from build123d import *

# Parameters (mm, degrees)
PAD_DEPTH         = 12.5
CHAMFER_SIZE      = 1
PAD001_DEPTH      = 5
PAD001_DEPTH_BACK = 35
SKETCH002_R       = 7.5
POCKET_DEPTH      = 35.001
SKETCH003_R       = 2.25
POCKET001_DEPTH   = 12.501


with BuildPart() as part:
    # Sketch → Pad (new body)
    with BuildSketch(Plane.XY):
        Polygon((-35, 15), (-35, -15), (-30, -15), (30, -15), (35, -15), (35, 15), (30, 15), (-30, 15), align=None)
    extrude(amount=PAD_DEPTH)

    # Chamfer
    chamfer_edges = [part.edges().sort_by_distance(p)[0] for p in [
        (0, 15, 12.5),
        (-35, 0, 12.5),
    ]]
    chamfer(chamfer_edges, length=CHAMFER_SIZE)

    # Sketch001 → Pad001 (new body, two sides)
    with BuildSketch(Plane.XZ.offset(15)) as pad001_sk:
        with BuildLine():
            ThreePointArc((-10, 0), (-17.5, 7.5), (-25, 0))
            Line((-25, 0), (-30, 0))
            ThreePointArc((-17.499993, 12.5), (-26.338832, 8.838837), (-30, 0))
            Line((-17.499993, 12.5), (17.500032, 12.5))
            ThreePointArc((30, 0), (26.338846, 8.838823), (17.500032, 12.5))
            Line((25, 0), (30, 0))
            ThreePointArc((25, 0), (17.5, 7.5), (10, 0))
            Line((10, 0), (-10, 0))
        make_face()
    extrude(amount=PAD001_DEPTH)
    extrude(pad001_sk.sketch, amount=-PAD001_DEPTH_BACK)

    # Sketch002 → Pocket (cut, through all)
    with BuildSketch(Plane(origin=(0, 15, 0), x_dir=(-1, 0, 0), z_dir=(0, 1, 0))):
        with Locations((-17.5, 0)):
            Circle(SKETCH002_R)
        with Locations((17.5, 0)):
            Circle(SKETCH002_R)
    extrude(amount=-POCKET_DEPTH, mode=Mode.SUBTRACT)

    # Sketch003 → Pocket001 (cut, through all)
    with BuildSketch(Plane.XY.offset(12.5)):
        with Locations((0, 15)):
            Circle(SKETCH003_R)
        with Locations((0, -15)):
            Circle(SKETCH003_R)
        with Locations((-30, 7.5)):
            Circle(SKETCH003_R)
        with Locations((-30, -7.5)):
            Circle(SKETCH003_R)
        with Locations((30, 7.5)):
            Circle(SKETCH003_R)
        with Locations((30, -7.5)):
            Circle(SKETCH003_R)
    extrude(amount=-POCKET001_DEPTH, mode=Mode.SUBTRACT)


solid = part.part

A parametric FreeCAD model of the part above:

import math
import FreeCAD as App
import Part
import Sketcher
from FreeCAD import Vector
Q = App.Units.Quantity


def edges_at(feature, points):
    """Names of the edges that pass closest to the given points."""
    edges = feature.Shape.Edges
    near = lambda p: min(range(len(edges)), key=lambda i: edges[i].distToShape(Part.Vertex(*p))[0])
    return sorted({f"Edge{near(p) + 1}" for p in points})


def add_polygon(sketch, points):
    """Adds a closed chain of lines whose ends are joined by coincident constraints."""
    first, n = sketch.GeometryCount, len(points)
    for a, b in zip(points, points[1:] + points[:1]):
        sketch.addGeometry(Part.LineSegment(App.Vector(*a, 0), App.Vector(*b, 0)), False)
    for i in range(n):
        sketch.addConstraint(Sketcher.Constraint("Coincident", first + i, 2, first + (i + 1) % n, 1))

doc = App.newDocument("Part")
body = doc.addObject("PartDesign::Body", "Body")

sketch1 = body.newObject("Sketcher::SketchObject", "Sketch")
sketch1.AttachmentSupport = (doc.getObject("XY_Plane"), [""])
sketch1.MapMode = "FlatFace"
add_polygon(sketch1, [(-35, 15), (-35, -15), (35, -15), (35, 15)])
sketch1.addConstraint(Sketcher.Constraint("Vertical", 0))
sketch1.addConstraint(Sketcher.Constraint("Horizontal", 1))
sketch1.addConstraint(Sketcher.Constraint("Vertical", 2))
sketch1.addConstraint(Sketcher.Constraint("Horizontal", 3))
sketch1.addConstraint(Sketcher.Constraint("Symmetric", 0, 2, 2, 2, -1, 1))
sketch1.addConstraint(Sketcher.Constraint("DistanceX", 1, 1, 1, 2, Q("70 mm")))
sketch1.addConstraint(Sketcher.Constraint("DistanceY", 0, 2, 0, 1, Q("30 mm")))
pad1 = body.newObject("PartDesign::Pad", "Pad")
pad1.Profile = sketch1
pad1.Length = 12.5
doc.recompute()

chamfer = body.newObject("PartDesign::Chamfer", "Chamfer")
chamfer.Base = (pad1, edges_at(pad1, [(0, 15, 12.5), (-35, 0, 12.5)]))
chamfer.Size = 1

sketch2 = body.newObject("Sketcher::SketchObject", "Sketch001")
sketch2.AttachmentSupport = (doc.getObject("XZ_Plane"), [""])
sketch2.MapMode = "FlatFace"
sketch2.AttachmentOffset = App.Placement(Vector(0, 0, 15), App.Rotation())
sketch2.addGeometry(Part.ArcOfCircle(Part.Circle(Vector(-18, 0, 0), Vector(0, 0, 1), 8), math.radians(0), math.radians(180)), False)
sketch2.addGeometry(Part.LineSegment(Vector(-10, 0, 0), Vector(10, 0, 0)), False)
sketch2.addGeometry(Part.ArcOfCircle(Part.Circle(Vector(18, 0, 0), Vector(0, 0, 1), 8), math.radians(0), math.radians(180)), False)
sketch2.addGeometry(Part.LineSegment(Vector(25, 0, 0), Vector(30, 0, 0)), False)
sketch2.addGeometry(Part.ArcOfCircle(Part.Circle(Vector(17, 0, 0), Vector(0, 0, 1), 13), math.radians(0), math.radians(90)), False)
sketch2.addGeometry(Part.LineSegment(Vector(18, 12, 0), Vector(-17, 12, 0)), False)
sketch2.addGeometry(Part.ArcOfCircle(Part.Circle(Vector(-17, 0, 0), Vector(0, 0, 1), 13), math.radians(90), math.radians(180)), False)
sketch2.addGeometry(Part.LineSegment(Vector(-30, 0, 0), Vector(-25, 0, 0)), False)
sketch2.addConstraint(Sketcher.Constraint("Coincident", 0, 1, 1, 1))
sketch2.addConstraint(Sketcher.Constraint("Coincident", 1, 2, 2, 2))
sketch2.addConstraint(Sketcher.Constraint("Coincident", 2, 1, 3, 1))
sketch2.addConstraint(Sketcher.Constraint("Coincident", 3, 2, 4, 1))
sketch2.addConstraint(Sketcher.Constraint("Coincident", 4, 2, 5, 1))
sketch2.addConstraint(Sketcher.Constraint("Tangent", 5, 2, 6, 1))
sketch2.addConstraint(Sketcher.Constraint("Coincident", 6, 2, 7, 1))
sketch2.addConstraint(Sketcher.Constraint("Coincident", 7, 2, 0, 2))
sketch2.addConstraint(Sketcher.Constraint("Horizontal", 1))
sketch2.addConstraint(Sketcher.Constraint("Horizontal", 3))
sketch2.addConstraint(Sketcher.Constraint("Horizontal", 5))
sketch2.addConstraint(Sketcher.Constraint("Horizontal", 7))
sketch2.addConstraint(Sketcher.Constraint("Coincident", 4, 3, 2, 3))
sketch2.addConstraint(Sketcher.Constraint("Coincident", 6, 3, 0, 3))
sketch2.addConstraint(Sketcher.Constraint("Equal", 0, 2))
sketch2.addConstraint(Sketcher.Constraint("Equal", 4, 6))
sketch2.addConstraint(Sketcher.Constraint("Symmetric", 0, 3, 2, 3, -1, 1))
sketch2.addConstraint(Sketcher.Constraint("PointOnObject", 0, 1, -1))
sketch2.addConstraint(Sketcher.Constraint("PointOnObject", 2, 1, -1))
sketch2.addConstraint(Sketcher.Constraint("PointOnObject", 6, 2, -1))
sketch2.addConstraint(Sketcher.Constraint("Radius", 0, Q("7.5 mm")))
sketch2.addConstraint(Sketcher.Constraint("Radius", 4, Q("12.500001 mm")))
sketch2.addConstraint(Sketcher.Constraint("DistanceX", 1, 1, 1, 2, Q("20 mm")))
sketch2.addConstraint(Sketcher.Constraint("DistanceX", 5, 2, 5, 1, Q("35.000025 mm")))
pad2 = body.newObject("PartDesign::Pad", "Pad001")
pad2.Profile = sketch2
pad2.Type = "TwoLengths"
pad2.Length = 5
pad2.Length2 = 35

sketch3 = body.newObject("Sketcher::SketchObject", "Sketch002")
sketch3.AttachmentSupport = (doc.getObject("XZ_Plane"), [""])
sketch3.MapMode = "FlatFace"
sketch3.AttachmentOffset = App.Placement(Vector(0, 0, -15), App.Rotation())
sketch3.addGeometry(Part.Circle(Vector(18, 0, 0), Vector(0, 0, 1), 8), False)
sketch3.addGeometry(Part.Circle(Vector(-18, 0, 0), Vector(0, 0, 1), 8), False)
sketch3.addConstraint(Sketcher.Constraint("Equal", 0, 1))
sketch3.addConstraint(Sketcher.Constraint("Symmetric", 0, 3, 1, 3, -1, 1))
sketch3.addConstraint(Sketcher.Constraint("PointOnObject", 0, 3, -1))
sketch3.addConstraint(Sketcher.Constraint("Diameter", 0, Q("15 mm")))
sketch3.addConstraint(Sketcher.Constraint("DistanceX", 1, 3, 0, 3, Q("35 mm")))
pocket1 = body.newObject("PartDesign::Pocket", "Pocket")
pocket1.Profile = sketch3
pocket1.Type = "ThroughAll"
pocket1.Reversed = True

sketch4 = body.newObject("Sketcher::SketchObject", "Sketch003")
sketch4.AttachmentSupport = (doc.getObject("XY_Plane"), [""])
sketch4.MapMode = "FlatFace"
sketch4.AttachmentOffset = App.Placement(Vector(0, 0, 12.5), App.Rotation())
sketch4.addGeometry(Part.Circle(Vector(0, 15, 0), Vector(0, 0, 1), 2.2), False)
sketch4.addGeometry(Part.Circle(Vector(0, -15, 0), Vector(0, 0, 1), 2.2), False)
sketch4.addGeometry(Part.Circle(Vector(-30, 7.5, 0), Vector(0, 0, 1), 2.2), False)
sketch4.addGeometry(Part.Circle(Vector(-30, -7.5, 0), Vector(0, 0, 1), 2.2), False)
sketch4.addGeometry(Part.Circle(Vector(30, 7.5, 0), Vector(0, 0, 1), 2.2), False)
sketch4.addGeometry(Part.Circle(Vector(30, -7.5, 0), Vector(0, 0, 1), 2.2), False)
sketch4.addConstraint(Sketcher.Constraint("Equal", 0, 1))
sketch4.addConstraint(Sketcher.Constraint("Equal", 1, 2))
sketch4.addConstraint(Sketcher.Constraint("Equal", 2, 3))
sketch4.addConstraint(Sketcher.Constraint("Equal", 3, 4))
sketch4.addConstraint(Sketcher.Constraint("Equal", 4, 5))
sketch4.addConstraint(Sketcher.Constraint("Symmetric", 0, 3, 1, 3, -1, 1))
sketch4.addConstraint(Sketcher.Constraint("Symmetric", 3, 3, 4, 3, -1, 1))
sketch4.addConstraint(Sketcher.Constraint("Symmetric", 2, 3, 5, 3, -1, 1))
sketch4.addConstraint(Sketcher.Constraint("Symmetric", 2, 3, 4, 3, -2))
sketch4.addConstraint(Sketcher.Constraint("PointOnObject", 0, 3, -2))
sketch4.addConstraint(Sketcher.Constraint("Diameter", 0, Q("4.5 mm")))
sketch4.addConstraint(Sketcher.Constraint("DistanceY", -1, 1, 0, 3, Q("15 mm")))
sketch4.addConstraint(Sketcher.Constraint("DistanceX", 2, 3, -1, 1, Q("30 mm")))
sketch4.addConstraint(Sketcher.Constraint("DistanceY", 3, 3, 2, 3, Q("15 mm")))
pocket2 = body.newObject("PartDesign::Pocket", "Pocket001")
pocket2.Profile = sketch4
pocket2.Type = "ThroughAll"

doc.recompute()
